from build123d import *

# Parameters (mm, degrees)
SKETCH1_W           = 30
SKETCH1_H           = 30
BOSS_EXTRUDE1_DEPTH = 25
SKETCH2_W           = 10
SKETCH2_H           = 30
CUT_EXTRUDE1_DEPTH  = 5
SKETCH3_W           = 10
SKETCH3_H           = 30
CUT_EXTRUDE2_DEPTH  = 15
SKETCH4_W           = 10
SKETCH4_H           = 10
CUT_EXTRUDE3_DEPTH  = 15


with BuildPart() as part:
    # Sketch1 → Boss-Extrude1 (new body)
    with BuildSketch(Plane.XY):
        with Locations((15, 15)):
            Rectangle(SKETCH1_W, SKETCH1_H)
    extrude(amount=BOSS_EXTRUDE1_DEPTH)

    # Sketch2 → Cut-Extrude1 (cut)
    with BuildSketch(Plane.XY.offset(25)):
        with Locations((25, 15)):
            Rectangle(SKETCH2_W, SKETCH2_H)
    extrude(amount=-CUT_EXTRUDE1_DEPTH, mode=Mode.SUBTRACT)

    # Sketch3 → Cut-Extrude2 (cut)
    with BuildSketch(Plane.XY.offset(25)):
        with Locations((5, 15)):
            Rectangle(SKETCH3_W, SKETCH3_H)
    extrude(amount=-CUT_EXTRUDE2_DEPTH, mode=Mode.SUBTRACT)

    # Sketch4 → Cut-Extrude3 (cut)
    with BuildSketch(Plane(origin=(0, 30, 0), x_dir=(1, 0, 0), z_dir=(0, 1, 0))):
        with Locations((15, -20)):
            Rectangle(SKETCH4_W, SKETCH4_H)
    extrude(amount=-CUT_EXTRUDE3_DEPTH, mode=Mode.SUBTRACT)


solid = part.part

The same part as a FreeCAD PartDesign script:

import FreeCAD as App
import Part
import Sketcher

doc = App.newDocument("Part")
body = doc.addObject("PartDesign::Body", "Body")

# Sketch on XY plane
sketch1 = doc.addObject("Sketcher::SketchObject", "Sketch")
body.addObject(sketch1)
sketch1.AttachmentSupport = (doc.XY_Plane, [""])
sketch1.MapMode = "FlatFace"
sketch1.addGeometry([
    Part.LineSegment(App.Vector(0, 30, 0), App.Vector(0, 0, 0)),
    Part.LineSegment(App.Vector(0, 0, 0), App.Vector(30, 0, 0)),
    Part.LineSegment(App.Vector(30, 0, 0), App.Vector(30, 30, 0)),
    Part.LineSegment(App.Vector(30, 30, 0), App.Vector(0, 30, 0)),
], False)
sketch1.addConstraint([
    Sketcher.Constraint("Coincident", 0, 2, 1, 1),
    Sketcher.Constraint("Coincident", 1, 2, 2, 1),
    Sketcher.Constraint("Coincident", 2, 2, 3, 1),
    Sketcher.Constraint("Coincident", 3, 2, 0, 1),
    Sketcher.Constraint("Vertical", 0),
    Sketcher.Constraint("Horizontal", 1),
    Sketcher.Constraint("Vertical", 2),
    Sketcher.Constraint("Horizontal", 3),
    Sketcher.Constraint("Coincident", 0, 2, -1, 1),
    Sketcher.Constraint("Equal", 3, 0),
    Sketcher.Constraint("DistanceX", 1, 1, 1, 2, 30.0),
])
pad1 = doc.addObject("PartDesign::Pad", "Pad")
body.addObject(pad1)
pad1.Profile = sketch1
pad1.Length = 25

# Sketch on XY plane
sketch2 = doc.addObject("Sketcher::SketchObject", "Sketch001")
body.addObject(sketch2)
sketch2.AttachmentSupport = (doc.XY_Plane, [""])
sketch2.MapMode = "FlatFace"
sketch2.AttachmentOffset = App.Placement(App.Vector(0, 0, 25), App.Rotation())
sketch2.addGeometry([
    Part.LineSegment(App.Vector(20, 30, 0), App.Vector(20, 0, 0)),
    Part.LineSegment(App.Vector(20, 0, 0), App.Vector(30, 0, 0)),
    Part.LineSegment(App.Vector(30, 0, 0), App.Vector(30, 30, 0)),
    Part.LineSegment(App.Vector(30, 30, 0), App.Vector(20, 30, 0)),
], False)
sketch2.addConstraint([
    Sketcher.Constraint("Coincident", 0, 2, 1, 1),
    Sketcher.Constraint("Coincident", 1, 2, 2, 1),
    Sketcher.Constraint("Coincident", 2, 2, 3, 1),
    Sketcher.Constraint("Coincident", 3, 2, 0, 1),
    Sketcher.Constraint("Vertical", 0),
    Sketcher.Constraint("Horizontal", 1),
    Sketcher.Constraint("Vertical", 2),
    Sketcher.Constraint("Horizontal", 3),
    Sketcher.Constraint("PointOnObject", 0, 2, -1),
    Sketcher.Constraint("DistanceX", 1, 1, 1, 2, 10.0),
    Sketcher.Constraint("DistanceY", 0, 2, 0, 1, 30.0),
    Sketcher.Constraint("DistanceX", -1, 1, 0, 2, 20.0),
])
pocket1 = doc.addObject("PartDesign::Pocket", "Pocket")
body.addObject(pocket1)
pocket1.Profile = sketch2
pocket1.Length = 5

# Sketch on XY plane
sketch3 = doc.addObject("Sketcher::SketchObject", "Sketch002")
body.addObject(sketch3)
sketch3.AttachmentSupport = (doc.XY_Plane, [""])
sketch3.MapMode = "FlatFace"
sketch3.AttachmentOffset = App.Placement(App.Vector(0, 0, 25), App.Rotation())
sketch3.addGeometry([
    Part.LineSegment(App.Vector(0, 30, 0), App.Vector(0, 0, 0)),
    Part.LineSegment(App.Vector(0, 0, 0), App.Vector(10, 0, 0)),
    Part.LineSegment(App.Vector(10, 0, 0), App.Vector(10, 30, 0)),
    Part.LineSegment(App.Vector(10, 30, 0), App.Vector(0, 30, 0)),
], False)
sketch3.addConstraint([
    Sketcher.Constraint("Coincident", 0, 2, 1, 1),
    Sketcher.Constraint("Coincident", 1, 2, 2, 1),
    Sketcher.Constraint("Coincident", 2, 2, 3, 1),
    Sketcher.Constraint("Coincident", 3, 2, 0, 1),
    Sketcher.Constraint("Vertical", 0),
    Sketcher.Constraint("Horizontal", 1),
    Sketcher.Constraint("Vertical", 2),
    Sketcher.Constraint("Horizontal", 3),
    Sketcher.Constraint("Coincident", 0, 2, -1, 1),
    Sketcher.Constraint("DistanceX", 1, 1, 1, 2, 10.0),
    Sketcher.Constraint("DistanceY", 0, 2, 0, 1, 30.0),
])
pocket2 = doc.addObject("PartDesign::Pocket", "Pocket001")
body.addObject(pocket2)
pocket2.Profile = sketch3
pocket2.Length = 15

# Sketch on XZ plane
sketch4 = doc.addObject("Sketcher::SketchObject", "Sketch003")
body.addObject(sketch4)
sketch4.AttachmentSupport = (doc.XZ_Plane, [""])
sketch4.MapMode = "FlatFace"
sketch4.AttachmentOffset = App.Placement(App.Vector(0, 0, -30), App.Rotation())
sketch4.addGeometry([
    Part.LineSegment(App.Vector(10, 15, 0), App.Vector(10, 25, 0)),
    Part.LineSegment(App.Vector(10, 25, 0), App.Vector(20, 25, 0)),
    Part.LineSegment(App.Vector(20, 25, 0), App.Vector(20, 15, 0)),
    Part.LineSegment(App.Vector(20, 15, 0), App.Vector(10, 15, 0)),
], False)
sketch4.addConstraint([
    Sketcher.Constraint("Coincident", 0, 2, 1, 1),
    Sketcher.Constraint("Coincident", 1, 2, 2, 1),
    Sketcher.Constraint("Coincident", 2, 2, 3, 1),
    Sketcher.Constraint("Coincident", 3, 2, 0, 1),
    Sketcher.Constraint("Vertical", 0),
    Sketcher.Constraint("Horizontal", 1),
    Sketcher.Constraint("Vertical", 2),
    Sketcher.Constraint("Horizontal", 3),
    Sketcher.Constraint("Equal", 3, 0),
    Sketcher.Constraint("DistanceX", 1, 1, 1, 2, 10.0),
    Sketcher.Constraint("DistanceX", -1, 1, 0, 2, 10.0),
    Sketcher.Constraint("DistanceY", -1, 1, 0, 2, 25.0),
])
pocket3 = doc.addObject("PartDesign::Pocket", "Pocket002")
body.addObject(pocket3)
pocket3.Profile = sketch4
pocket3.Length = 15
pocket3.Reversed = True

doc.recompute()
